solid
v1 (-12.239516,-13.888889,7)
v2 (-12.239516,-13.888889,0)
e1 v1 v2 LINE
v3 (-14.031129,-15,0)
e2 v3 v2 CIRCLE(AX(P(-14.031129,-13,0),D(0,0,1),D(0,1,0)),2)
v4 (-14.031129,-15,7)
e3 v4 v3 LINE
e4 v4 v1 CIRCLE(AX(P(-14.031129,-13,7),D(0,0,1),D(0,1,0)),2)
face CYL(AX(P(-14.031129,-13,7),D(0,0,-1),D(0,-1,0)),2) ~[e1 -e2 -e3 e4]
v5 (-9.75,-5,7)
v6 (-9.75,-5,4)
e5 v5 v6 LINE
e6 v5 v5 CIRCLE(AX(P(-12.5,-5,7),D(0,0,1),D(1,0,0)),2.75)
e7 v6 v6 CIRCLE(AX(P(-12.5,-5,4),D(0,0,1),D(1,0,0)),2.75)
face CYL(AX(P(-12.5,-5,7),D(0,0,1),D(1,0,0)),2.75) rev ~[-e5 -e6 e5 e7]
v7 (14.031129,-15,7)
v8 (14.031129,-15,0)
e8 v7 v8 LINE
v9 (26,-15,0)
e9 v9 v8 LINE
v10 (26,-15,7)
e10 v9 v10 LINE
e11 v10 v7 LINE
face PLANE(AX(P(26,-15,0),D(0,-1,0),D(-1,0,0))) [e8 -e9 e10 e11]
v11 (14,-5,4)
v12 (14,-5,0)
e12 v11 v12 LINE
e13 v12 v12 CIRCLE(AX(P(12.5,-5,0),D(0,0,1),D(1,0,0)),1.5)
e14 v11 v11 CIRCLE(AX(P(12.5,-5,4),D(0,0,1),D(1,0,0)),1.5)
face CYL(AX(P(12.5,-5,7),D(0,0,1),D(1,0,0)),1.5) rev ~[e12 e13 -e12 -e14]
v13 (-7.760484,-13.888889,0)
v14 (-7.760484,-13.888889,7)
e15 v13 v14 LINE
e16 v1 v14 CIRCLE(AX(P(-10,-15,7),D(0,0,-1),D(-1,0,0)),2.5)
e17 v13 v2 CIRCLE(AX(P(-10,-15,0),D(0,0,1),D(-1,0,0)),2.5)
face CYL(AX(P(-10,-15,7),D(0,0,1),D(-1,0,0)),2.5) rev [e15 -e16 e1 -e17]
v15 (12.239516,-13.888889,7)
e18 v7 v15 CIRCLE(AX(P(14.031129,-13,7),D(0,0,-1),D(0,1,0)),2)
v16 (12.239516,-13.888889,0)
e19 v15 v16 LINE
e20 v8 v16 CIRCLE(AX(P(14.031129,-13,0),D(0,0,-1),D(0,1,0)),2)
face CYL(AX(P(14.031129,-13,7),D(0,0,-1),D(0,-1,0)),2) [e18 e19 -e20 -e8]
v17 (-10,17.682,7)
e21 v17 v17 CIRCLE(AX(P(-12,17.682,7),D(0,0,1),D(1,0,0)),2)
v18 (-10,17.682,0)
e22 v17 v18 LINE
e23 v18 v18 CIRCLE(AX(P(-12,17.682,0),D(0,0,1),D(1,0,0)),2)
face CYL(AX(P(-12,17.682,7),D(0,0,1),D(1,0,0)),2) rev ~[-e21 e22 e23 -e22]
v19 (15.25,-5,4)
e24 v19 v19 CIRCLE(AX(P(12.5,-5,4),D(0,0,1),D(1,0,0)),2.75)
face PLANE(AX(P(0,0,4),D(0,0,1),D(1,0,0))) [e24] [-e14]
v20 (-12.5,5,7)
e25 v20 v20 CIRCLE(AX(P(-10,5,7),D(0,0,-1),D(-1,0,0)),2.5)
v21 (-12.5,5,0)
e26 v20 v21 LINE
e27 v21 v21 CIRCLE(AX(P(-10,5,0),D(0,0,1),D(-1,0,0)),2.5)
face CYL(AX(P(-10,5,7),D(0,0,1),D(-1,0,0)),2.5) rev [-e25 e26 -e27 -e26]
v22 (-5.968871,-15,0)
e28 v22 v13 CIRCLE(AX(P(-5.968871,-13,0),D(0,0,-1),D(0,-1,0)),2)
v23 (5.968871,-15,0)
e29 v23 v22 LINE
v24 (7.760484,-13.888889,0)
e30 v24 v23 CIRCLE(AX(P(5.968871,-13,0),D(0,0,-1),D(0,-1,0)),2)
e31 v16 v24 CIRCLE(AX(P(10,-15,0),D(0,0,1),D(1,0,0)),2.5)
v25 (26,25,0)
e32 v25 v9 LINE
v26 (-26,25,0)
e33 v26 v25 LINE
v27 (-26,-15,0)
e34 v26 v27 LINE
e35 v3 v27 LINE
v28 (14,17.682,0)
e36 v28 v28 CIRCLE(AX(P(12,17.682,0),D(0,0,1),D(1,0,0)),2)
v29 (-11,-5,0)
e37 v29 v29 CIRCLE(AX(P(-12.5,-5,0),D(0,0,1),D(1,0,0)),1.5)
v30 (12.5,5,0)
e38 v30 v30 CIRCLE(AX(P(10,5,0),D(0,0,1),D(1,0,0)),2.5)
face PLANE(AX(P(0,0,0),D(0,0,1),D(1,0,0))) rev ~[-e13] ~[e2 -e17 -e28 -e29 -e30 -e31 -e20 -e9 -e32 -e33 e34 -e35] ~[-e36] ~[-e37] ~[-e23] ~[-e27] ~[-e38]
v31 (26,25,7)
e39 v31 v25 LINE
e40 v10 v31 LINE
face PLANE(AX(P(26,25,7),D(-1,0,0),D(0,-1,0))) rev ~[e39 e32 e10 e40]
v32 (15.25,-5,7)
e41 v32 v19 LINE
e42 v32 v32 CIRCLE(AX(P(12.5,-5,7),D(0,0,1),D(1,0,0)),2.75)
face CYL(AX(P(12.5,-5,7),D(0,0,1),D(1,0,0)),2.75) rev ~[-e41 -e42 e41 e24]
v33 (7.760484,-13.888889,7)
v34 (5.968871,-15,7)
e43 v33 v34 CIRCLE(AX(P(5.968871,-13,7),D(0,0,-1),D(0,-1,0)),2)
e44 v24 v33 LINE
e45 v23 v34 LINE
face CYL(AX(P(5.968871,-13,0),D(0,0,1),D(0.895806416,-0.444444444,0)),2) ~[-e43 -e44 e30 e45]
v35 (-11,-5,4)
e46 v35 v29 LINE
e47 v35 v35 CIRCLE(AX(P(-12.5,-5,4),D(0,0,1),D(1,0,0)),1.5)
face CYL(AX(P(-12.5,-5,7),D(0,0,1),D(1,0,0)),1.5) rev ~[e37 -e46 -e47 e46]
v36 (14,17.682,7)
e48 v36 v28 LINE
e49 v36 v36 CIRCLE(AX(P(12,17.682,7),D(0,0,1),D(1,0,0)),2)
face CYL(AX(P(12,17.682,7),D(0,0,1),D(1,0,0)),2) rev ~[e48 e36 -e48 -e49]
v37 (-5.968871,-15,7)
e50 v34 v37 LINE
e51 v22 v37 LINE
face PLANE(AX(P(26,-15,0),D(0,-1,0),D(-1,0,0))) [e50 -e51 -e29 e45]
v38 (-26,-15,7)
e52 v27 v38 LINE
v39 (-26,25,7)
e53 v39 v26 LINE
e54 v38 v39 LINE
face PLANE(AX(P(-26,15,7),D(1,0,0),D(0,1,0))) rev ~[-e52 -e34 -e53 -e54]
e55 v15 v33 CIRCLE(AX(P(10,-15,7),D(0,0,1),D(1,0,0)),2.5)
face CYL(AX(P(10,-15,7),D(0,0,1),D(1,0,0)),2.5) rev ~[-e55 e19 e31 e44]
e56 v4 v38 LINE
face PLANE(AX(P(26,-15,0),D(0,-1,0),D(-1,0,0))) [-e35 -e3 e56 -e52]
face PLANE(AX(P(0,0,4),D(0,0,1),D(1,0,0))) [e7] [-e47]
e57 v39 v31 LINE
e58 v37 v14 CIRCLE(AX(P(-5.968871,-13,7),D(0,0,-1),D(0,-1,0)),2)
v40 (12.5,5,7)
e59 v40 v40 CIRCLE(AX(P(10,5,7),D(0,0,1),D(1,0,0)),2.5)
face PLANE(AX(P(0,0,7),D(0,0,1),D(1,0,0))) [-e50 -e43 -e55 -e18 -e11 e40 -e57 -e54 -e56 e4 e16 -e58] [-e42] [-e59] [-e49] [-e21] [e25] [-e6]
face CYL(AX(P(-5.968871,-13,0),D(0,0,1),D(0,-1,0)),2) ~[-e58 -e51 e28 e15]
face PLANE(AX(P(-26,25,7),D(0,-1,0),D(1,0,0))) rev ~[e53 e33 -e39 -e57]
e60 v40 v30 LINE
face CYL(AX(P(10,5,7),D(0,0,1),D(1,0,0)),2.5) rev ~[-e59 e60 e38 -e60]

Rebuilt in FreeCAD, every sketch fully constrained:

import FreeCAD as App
import Part
import Sketcher
from FreeCAD import Vector
Q = App.Units.Quantity


def edges_at(feature, points):
    """Names of the edges that pass closest to the given points."""
    edges = feature.Shape.Edges
    near = lambda p: min(range(len(edges)), key=lambda i: edges[i].distToShape(Part.Vertex(*p))[0])
    return sorted({f"Edge{near(p) + 1}" for p in points})

doc = App.newDocument("Part")
body = doc.addObject("PartDesign::Body", "Body")

sketch1 = body.newObject("Sketcher::SketchObject", "Sketch")
sketch1.AttachmentSupport = (doc.getObject("XY_Plane"), [""])
sketch1.MapMode = "FlatFace"
sketch1.addGeometry([
    Part.LineSegment(Vector(26, 15, 0), Vector(-26, 15, 0)),
    Part.LineSegment(Vector(-26, 15, 0), Vector(-26, -15, 0)),
    Part.LineSegment(Vector(-26, -15, 0), Vector(26, -15, 0)),
    Part.LineSegment(Vector(26, -15, 0), Vector(26, 15, 0)),
], False)
sketch1.addConstraint([
    Sketcher.Constraint("Coincident", 0, 2, 1, 1),
    Sketcher.Constraint("Coincident", 1, 2, 2, 1),
    Sketcher.Constraint("Coincident", 2, 2, 3, 1),
    Sketcher.Constraint("Coincident", 3, 2, 0, 1),
    Sketcher.Constraint("Horizontal", 0),
    Sketcher.Constraint("Vertical", 1),
    Sketcher.Constraint("Horizontal", 2),
    Sketcher.Constraint("Vertical", 3),
    Sketcher.Constraint("Symmetric", 0, 2, 2, 2, -1, 1),
    Sketcher.Constraint("DistanceX", 0, 2, 0, 1, Q("52 mm")),
    Sketcher.Constraint("DistanceY", 1, 2, 1, 1, Q("30 mm")),
])
pad1 = body.newObject("PartDesign::Pad", "Pad")
pad1.Profile = sketch1
pad1.Length = 7

sketch2 = body.newObject("Sketcher::SketchObject", "Sketch001")
sketch2.AttachmentSupport = (doc.getObject("XY_Plane"), [""])
sketch2.MapMode = "FlatFace"
sketch2.AttachmentOffset = App.Placement(Vector(0, 0, 7), App.Rotation())
sketch2.addGeometry([
    Part.Circle(Vector(-12.5, -5, 0), Vector(0, 0, 1), 1.5),
    Part.Circle(Vector(12.5, -5, 0), Vector(0, 0, 1), 1.5),
], False)
sketch2.addConstraint([
    Sketcher.Constraint("Equal", 0, 1),
    Sketcher.Constraint("Symmetric", 0, 3, 1, 3, -2),
    Sketcher.Constraint("Diameter", 0, Q("3 mm")),
    Sketcher.Constraint("DistanceX", 0, 3, 1, 3, Q("25 mm")),
    Sketcher.Constraint("DistanceY", 0, 3, -1, 1, Q("5 mm")),
])
pocket1 = body.newObject("PartDesign::Pocket", "Pocket")
pocket1.Profile = sketch2
pocket1.Type = "ThroughAll"

sketch3 = body.newObject("Sketcher::SketchObject", "Sketch002")
sketch3.AttachmentSupport = (doc.getObject("XY_Plane"), [""])
sketch3.MapMode = "FlatFace"
sketch3.AttachmentOffset = App.Placement(Vector(0, 0, 7), App.Rotation())
sketch3.addGeometry([
    Part.Circle(Vector(10, 5, 0), Vector(0, 0, 1), 2.5),
    Part.Circle(Vector(10, -15, 0), Vector(0, 0, 1), 2.5),
], False)
sketch3.addConstraint([
    Sketcher.Constraint("Equal", 0, 1),
    Sketcher.Constraint("Vertical", 0, 3, 1, 3),
    Sketcher.Constraint("Diameter", 0, Q("5 mm")),
    Sketcher.Constraint("DistanceX", -1, 1, 0, 3, Q("10 mm")),
    Sketcher.Constraint("DistanceY", -1, 1, 0, 3, Q("5 mm")),
    Sketcher.Constraint("DistanceY", 1, 3, 0, 3, Q("20 mm")),
])
pocket2 = body.newObject("PartDesign::Pocket", "Pocket001")
pocket2.Profile = sketch3
pocket2.Type = "ThroughAll"
doc.recompute()

mirrored = body.newObject("PartDesign::Mirrored", "Mirrored")
mirrored.Originals = [pocket2]
mirrored.MirrorPlane = (doc.getObject("YZ_Plane"), [""])
body.Tip = mirrored
doc.recompute()

fillet = body.newObject("PartDesign::Fillet", "Fillet")
fillet.Base = (mirrored, edges_at(mirrored, [
    (-12.5, -15, 3.5),
    (-7.5, -15, 3.5),
    (12.5, -15, 3.5),
    (7.5, -15, 3.5),
]))
fillet.Radius = 2

sketch4 = body.newObject("Sketcher::SketchObject", "Sketch003")
sketch4.AttachmentSupport = (doc.getObject("XY_Plane"), [""])
sketch4.MapMode = "FlatFace"
sketch4.AttachmentOffset = App.Placement(Vector(0, 0, 7), App.Rotation())
sketch4.addGeometry([
    Part.Circle(Vector(12.5, -5, 0), Vector(0, 0, 1), 2.75),
    Part.Circle(Vector(12.5, -5, 0), Vector(0, 0, 1), 1.5),
    Part.Circle(Vector(-12.5, -5, 0), Vector(0, 0, 1), 2.75),
    Part.Circle(Vector(-12.5, -5, 0), Vector(0, 0, 1), 1.5),
], False)
sketch4.addConstraint([
    Sketcher.Constraint("Coincident", 1, 3, 0, 3),
    Sketcher.Constraint("Coincident", 3, 3, 2, 3),
    Sketcher.Constraint("Equal", 0, 2),
    Sketcher.Constraint("Equal", 1, 3),
    Sketcher.Constraint("Symmetric", 0, 3, 2, 3, -2),
    Sketcher.Constraint("Diameter", 0, Q("5.5 mm")),
    Sketcher.Constraint("Diameter", 1, Q("3 mm")),
    Sketcher.Constraint("DistanceY", 0, 3, -1, 1, Q("5 mm")),
    Sketcher.Constraint("DistanceX", 2, 3, 0, 3, Q("25 mm")),
])
pocket3 = body.newObject("PartDesign::Pocket", "Pocket002")
pocket3.Profile = sketch4
pocket3.Length = 3

sketch5 = body.newObject("Sketcher::SketchObject", "Sketch004")
sketch5.AttachmentSupport = (doc.getObject("XY_Plane"), [""])
sketch5.MapMode = "FlatFace"
sketch5.AttachmentOffset = App.Placement(Vector(0, 0, 7), App.Rotation())
sketch5.addGeometry([
    Part.LineSegment(Vector(-26, 15, 0), Vector(26, 15, 0)),
    Part.LineSegment(Vector(26, 15, 0), Vector(26, 25, 0)),
    Part.LineSegment(Vector(26, 25, 0), Vector(-26, 25, 0)),
    Part.LineSegment(Vector(-26, 25, 0), Vector(-26, 15, 0)),
], False)
sketch5.addConstraint([
    Sketcher.Constraint("Coincident", 0, 2, 1, 1),
    Sketcher.Constraint("Coincident", 1, 2, 2, 1),
    Sketcher.Constraint("Coincident", 2, 2, 3, 1),
    Sketcher.Constraint("Coincident", 3, 2, 0, 1),
    Sketcher.Constraint("Horizontal", 0),
    Sketcher.Constraint("Vertical", 1),
    Sketcher.Constraint("Horizontal", 2),
    Sketcher.Constraint("Vertical", 3),
    Sketcher.Constraint("DistanceY", 1, 1, 1, 2, Q("10 mm")),
    Sketcher.Constraint("DistanceX", 0, 1, 0, 2, Q("52 mm")),
    Sketcher.Constraint("DistanceX", -1, 1, 0, 2, Q("26 mm")),
    Sketcher.Constraint("DistanceY", -1, 1, 0, 2, Q("15 mm")),
])
pad2 = body.newObject("PartDesign::Pad", "Pad001")
pad2.Profile = sketch5
pad2.Length = 7
pad2.Reversed = True

sketch6 = body.newObject("Sketcher::SketchObject", "Sketch005")
sketch6.AttachmentSupport = (doc.getObject("XY_Plane"), [""])
sketch6.MapMode = "FlatFace"
sketch6.AttachmentOffset = App.Placement(Vector(0, 0, 7), App.Rotation())
sketch6.addGeometry([
    Part.Circle(Vector(12, 17.682, 0), Vector(0, 0, 1), 2),
    Part.Circle(Vector(-12, 17.682, 0), Vector(0, 0, 1), 2),
], False)
sketch6.addConstraint([
    Sketcher.Constraint("Equal", 0, 1),
    Sketcher.Constraint("Symmetric", 0, 3, 1, 3, -2),
    Sketcher.Constraint("Diameter", 0, Q("4 mm")),
    Sketcher.Constraint("DistanceX", -1, 1, 0, 3, Q("12 mm")),
    Sketcher.Constraint("DistanceY", -1, 1, 0, 3, Q("17.682 mm")),
])
pocket4 = body.newObject("PartDesign::Pocket", "Pocket003")
pocket4.Profile = sketch6
pocket4.Type = "ThroughAll"

doc.recompute()
